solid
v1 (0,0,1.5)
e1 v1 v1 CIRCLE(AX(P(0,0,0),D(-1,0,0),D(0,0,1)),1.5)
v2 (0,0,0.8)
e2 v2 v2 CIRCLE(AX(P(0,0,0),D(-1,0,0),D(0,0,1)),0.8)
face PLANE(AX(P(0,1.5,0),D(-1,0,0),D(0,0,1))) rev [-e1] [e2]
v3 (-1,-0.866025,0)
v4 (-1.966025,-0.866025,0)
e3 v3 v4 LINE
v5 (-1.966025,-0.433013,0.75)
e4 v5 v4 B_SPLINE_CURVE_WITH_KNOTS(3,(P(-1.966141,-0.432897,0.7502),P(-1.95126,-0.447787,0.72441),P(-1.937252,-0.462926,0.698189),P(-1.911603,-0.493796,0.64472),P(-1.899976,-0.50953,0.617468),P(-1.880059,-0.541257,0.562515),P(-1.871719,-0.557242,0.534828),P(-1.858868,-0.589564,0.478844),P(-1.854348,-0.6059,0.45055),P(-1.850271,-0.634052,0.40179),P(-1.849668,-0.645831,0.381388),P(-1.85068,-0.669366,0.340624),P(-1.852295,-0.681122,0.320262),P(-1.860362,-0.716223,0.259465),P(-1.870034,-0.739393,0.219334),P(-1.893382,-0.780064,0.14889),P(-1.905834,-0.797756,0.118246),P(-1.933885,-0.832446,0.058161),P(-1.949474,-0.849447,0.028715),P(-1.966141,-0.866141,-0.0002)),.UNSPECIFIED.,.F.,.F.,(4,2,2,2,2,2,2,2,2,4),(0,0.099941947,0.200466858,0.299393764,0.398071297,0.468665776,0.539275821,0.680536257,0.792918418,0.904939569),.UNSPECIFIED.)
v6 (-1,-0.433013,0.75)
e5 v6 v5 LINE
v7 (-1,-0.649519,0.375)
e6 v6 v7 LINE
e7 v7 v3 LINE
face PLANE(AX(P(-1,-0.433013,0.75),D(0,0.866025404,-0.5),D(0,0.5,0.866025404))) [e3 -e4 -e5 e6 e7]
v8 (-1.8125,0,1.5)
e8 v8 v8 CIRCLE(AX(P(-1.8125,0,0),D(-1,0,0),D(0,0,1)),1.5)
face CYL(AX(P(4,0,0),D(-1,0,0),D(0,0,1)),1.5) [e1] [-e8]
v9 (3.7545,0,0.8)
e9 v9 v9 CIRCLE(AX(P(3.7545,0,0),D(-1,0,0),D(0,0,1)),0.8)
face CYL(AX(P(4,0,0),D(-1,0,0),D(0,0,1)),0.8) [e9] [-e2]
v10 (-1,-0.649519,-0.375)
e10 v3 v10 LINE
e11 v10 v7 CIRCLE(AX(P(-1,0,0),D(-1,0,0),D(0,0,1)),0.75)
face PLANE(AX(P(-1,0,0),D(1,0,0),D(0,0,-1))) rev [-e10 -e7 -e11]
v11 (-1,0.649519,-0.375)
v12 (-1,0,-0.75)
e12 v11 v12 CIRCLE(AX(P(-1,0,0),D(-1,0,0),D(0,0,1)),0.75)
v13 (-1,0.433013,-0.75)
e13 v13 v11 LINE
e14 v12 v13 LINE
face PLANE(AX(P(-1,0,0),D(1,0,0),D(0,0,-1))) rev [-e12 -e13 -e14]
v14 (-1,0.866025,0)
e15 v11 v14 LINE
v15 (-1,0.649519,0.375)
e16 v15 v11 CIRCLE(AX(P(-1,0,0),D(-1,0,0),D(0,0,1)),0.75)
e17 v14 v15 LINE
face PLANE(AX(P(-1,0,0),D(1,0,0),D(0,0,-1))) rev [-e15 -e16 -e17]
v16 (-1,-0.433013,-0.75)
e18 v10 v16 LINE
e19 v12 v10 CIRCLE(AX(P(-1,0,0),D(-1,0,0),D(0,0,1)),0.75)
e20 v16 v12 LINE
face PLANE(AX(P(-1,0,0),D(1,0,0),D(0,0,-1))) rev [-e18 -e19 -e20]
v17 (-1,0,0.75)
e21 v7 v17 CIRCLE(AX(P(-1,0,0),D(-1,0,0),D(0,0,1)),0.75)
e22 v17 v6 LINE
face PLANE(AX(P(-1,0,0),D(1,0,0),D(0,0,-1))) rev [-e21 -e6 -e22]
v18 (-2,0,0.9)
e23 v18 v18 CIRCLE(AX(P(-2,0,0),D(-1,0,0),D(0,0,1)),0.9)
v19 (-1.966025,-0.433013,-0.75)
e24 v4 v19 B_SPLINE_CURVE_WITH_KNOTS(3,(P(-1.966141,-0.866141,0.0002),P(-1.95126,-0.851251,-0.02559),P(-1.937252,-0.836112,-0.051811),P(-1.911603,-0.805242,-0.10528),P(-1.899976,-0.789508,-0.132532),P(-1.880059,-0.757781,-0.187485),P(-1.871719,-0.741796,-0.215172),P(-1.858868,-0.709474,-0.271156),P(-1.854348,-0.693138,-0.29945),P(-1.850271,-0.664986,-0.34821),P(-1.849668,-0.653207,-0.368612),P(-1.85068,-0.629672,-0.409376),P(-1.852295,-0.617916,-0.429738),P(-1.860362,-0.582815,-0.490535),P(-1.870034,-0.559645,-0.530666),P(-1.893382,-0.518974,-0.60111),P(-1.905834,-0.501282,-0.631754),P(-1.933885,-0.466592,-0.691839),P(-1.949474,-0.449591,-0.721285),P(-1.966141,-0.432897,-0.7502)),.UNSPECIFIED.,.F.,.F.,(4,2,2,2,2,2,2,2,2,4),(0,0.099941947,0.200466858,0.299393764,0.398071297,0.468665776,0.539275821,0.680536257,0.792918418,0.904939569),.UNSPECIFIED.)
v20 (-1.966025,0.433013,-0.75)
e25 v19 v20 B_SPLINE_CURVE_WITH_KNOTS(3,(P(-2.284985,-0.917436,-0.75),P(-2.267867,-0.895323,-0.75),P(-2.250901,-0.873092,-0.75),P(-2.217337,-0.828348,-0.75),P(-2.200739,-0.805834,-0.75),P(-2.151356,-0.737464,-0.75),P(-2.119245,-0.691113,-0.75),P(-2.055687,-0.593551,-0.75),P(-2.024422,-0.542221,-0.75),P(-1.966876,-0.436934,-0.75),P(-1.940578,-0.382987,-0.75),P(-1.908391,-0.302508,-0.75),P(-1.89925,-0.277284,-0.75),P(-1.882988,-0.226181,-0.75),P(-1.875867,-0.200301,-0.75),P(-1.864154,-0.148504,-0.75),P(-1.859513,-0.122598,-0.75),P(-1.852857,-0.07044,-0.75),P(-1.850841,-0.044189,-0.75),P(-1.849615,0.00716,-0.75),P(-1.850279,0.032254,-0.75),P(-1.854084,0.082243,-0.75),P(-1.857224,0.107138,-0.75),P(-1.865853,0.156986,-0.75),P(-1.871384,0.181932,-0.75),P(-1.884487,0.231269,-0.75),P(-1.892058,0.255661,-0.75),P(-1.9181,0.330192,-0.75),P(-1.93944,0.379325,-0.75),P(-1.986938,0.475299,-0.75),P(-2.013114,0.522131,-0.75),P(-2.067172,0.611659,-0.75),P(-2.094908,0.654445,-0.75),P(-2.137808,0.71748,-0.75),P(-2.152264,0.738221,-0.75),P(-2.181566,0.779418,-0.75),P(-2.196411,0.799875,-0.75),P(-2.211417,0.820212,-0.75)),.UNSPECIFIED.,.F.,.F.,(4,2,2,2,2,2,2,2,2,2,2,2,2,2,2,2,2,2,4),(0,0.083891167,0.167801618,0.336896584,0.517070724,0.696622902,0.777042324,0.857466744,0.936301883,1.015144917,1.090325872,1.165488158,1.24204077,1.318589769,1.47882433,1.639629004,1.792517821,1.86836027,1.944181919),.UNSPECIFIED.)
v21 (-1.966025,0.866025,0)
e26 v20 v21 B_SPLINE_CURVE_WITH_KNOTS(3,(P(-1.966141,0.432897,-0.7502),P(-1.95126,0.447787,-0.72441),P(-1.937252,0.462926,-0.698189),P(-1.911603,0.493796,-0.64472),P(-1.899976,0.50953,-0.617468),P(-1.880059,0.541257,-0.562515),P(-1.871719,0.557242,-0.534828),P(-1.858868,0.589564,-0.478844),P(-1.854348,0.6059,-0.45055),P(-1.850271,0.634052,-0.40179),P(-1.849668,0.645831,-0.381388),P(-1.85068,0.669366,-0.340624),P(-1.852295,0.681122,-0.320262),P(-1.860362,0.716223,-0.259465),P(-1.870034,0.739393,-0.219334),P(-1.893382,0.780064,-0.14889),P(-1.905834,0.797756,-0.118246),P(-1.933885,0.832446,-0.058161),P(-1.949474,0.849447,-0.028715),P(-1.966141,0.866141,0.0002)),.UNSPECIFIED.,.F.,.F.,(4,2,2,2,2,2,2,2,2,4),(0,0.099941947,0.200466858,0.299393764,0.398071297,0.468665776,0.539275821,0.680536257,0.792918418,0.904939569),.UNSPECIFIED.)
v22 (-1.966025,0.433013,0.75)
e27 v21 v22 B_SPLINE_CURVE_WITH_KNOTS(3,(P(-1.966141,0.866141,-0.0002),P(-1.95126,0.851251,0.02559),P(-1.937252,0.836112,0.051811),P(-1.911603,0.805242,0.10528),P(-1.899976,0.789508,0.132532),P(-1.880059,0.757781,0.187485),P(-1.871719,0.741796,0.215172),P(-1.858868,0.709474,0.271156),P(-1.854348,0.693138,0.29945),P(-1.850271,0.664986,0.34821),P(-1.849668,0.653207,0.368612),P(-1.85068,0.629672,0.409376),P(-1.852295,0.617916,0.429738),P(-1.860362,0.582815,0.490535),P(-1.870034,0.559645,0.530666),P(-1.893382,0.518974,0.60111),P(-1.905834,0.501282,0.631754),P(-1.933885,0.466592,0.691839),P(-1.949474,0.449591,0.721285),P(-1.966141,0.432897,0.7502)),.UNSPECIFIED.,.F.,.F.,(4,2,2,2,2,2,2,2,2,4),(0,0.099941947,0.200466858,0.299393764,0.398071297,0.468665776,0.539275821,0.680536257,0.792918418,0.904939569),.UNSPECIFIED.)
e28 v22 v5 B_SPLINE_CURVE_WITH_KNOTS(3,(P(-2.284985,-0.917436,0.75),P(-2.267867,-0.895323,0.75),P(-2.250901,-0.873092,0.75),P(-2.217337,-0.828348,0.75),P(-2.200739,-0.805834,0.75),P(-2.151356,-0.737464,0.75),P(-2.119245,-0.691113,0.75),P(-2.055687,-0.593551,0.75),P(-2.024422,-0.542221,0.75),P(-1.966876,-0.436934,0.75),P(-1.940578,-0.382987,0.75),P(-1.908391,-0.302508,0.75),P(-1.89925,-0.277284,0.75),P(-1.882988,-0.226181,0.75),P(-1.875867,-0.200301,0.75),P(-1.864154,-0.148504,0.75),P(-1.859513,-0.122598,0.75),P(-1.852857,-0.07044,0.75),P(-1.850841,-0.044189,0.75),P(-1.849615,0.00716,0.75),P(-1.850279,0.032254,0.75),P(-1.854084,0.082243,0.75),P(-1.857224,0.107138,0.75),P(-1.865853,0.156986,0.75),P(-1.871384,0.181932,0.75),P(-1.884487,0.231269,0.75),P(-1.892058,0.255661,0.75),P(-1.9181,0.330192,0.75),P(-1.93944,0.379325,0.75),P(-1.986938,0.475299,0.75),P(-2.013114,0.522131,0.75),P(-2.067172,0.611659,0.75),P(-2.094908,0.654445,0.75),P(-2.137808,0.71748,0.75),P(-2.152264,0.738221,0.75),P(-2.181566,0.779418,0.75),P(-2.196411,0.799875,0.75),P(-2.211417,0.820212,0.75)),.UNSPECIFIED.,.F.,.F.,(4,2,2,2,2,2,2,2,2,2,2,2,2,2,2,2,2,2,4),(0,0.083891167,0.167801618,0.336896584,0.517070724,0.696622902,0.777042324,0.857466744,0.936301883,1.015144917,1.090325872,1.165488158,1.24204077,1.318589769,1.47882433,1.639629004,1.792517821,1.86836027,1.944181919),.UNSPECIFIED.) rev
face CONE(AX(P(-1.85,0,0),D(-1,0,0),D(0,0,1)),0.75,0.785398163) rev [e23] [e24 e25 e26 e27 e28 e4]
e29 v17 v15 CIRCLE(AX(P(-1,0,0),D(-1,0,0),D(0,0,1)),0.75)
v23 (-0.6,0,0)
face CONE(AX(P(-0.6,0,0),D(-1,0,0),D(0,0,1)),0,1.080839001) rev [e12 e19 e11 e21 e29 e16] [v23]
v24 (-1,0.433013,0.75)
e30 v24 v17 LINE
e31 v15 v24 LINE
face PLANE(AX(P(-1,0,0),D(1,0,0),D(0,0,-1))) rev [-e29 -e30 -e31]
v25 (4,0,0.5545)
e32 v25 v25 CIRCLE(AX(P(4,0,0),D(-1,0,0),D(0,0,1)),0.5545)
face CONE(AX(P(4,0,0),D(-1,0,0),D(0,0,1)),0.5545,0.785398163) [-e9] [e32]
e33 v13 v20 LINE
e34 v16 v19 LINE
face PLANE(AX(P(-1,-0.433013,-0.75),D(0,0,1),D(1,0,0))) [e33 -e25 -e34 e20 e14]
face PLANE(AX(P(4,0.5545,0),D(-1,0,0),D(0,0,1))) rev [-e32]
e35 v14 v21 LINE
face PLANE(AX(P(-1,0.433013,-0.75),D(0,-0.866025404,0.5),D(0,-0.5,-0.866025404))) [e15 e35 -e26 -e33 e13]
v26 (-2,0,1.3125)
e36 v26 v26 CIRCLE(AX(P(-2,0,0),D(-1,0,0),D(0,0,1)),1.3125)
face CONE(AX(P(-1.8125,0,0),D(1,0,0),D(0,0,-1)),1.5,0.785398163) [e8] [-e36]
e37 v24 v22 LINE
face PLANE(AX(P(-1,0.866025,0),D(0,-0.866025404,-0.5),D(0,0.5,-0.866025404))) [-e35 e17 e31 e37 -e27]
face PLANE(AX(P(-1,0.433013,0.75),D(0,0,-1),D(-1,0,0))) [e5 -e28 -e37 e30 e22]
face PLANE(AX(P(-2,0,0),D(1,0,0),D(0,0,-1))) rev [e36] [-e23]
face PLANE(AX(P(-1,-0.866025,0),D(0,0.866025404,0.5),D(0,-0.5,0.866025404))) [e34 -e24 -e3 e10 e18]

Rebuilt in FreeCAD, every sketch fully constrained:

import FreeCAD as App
import Part
import Sketcher
from FreeCAD import Vector
Q = App.Units.Quantity

doc = App.newDocument("Part")
body = doc.addObject("PartDesign::Body", "Body")

sketch1 = body.newObject("Sketcher::SketchObject", "Sketch")
sketch1.AttachmentSupport = (doc.getObject("XY_Plane"), [""])
sketch1.MapMode = "FlatFace"
sketch1.addGeometry(Part.LineSegment(Vector(-2, 1.3125, 0), Vector(-2, 0, 0)), False)
sketch1.addGeometry(Part.LineSegment(Vector(-2, 0, 0), Vector(4, 0, 0)), False)
sketch1.addGeometry(Part.LineSegment(Vector(4, 0, 0), Vector(4, 0.5545, 0)), False)
sketch1.addGeometry(Part.LineSegment(Vector(4, 0.5545, 0), Vector(3.7545, 0.8, 0)), False)
sketch1.addGeometry(Part.LineSegment(Vector(3.7545, 0.8, 0), Vector(0, 0.8, 0)), False)
sketch1.addGeometry(Part.LineSegment(Vector(0, 0.8, 0), Vector(0, 1.5, 0)), False)
sketch1.addGeometry(Part.LineSegment(Vector(0, 1.5, 0), Vector(-1.8125, 1.5, 0)), False)
sketch1.addGeometry(Part.LineSegment(Vector(-1.8125, 1.5, 0), Vector(-2, 1.3125, 0)), False)
sketch1.addConstraint(Sketcher.Constraint("Coincident", 0, 2, 1, 1))
sketch1.addConstraint(Sketcher.Constraint("Coincident", 1, 2, 2, 1))
sketch1.addConstraint(Sketcher.Constraint("Coincident", 2, 2, 3, 1))
sketch1.addConstraint(Sketcher.Constraint("Coincident", 3, 2, 4, 1))
sketch1.addConstraint(Sketcher.Constraint("Coincident", 4, 2, 5, 1))
sketch1.addConstraint(Sketcher.Constraint("Coincident", 5, 2, 6, 1))
sketch1.addConstraint(Sketcher.Constraint("Coincident", 6, 2, 7, 1))
sketch1.addConstraint(Sketcher.Constraint("Coincident", 7, 2, 0, 1))
sketch1.addConstraint(Sketcher.Constraint("Vertical", 0))
sketch1.addConstraint(Sketcher.Constraint("Horizontal", 1))
sketch1.addConstraint(Sketcher.Constraint("Vertical", 2))
sketch1.addConstraint(Sketcher.Constraint("Horizontal", 4))
sketch1.addConstraint(Sketcher.Constraint("Vertical", 5))
sketch1.addConstraint(Sketcher.Constraint("Horizontal", 6))
sketch1.addConstraint(Sketcher.Constraint("PointOnObject", 0, 2, -1))
sketch1.addConstraint(Sketcher.Constraint("PointOnObject", 4, 2, -2))
sketch1.addConstraint(Sketcher.Constraint("Perpendicular", 3, 7))
sketch1.addConstraint(Sketcher.Constraint("DistanceX", 1, 1, 1, 2, 6.0))
sketch1.addConstraint(Sketcher.Constraint("Angle", 3, Q("135 deg")))
sketch1.addConstraint(Sketcher.Constraint("DistanceY", 5, 1, 5, 2, 0.7))
sketch1.addConstraint(Sketcher.Constraint("DistanceX", 0, 2, -1, 1, 2.0))
sketch1.addConstraint(Sketcher.Constraint("DistanceY", -1, 1, 3, 2, 0.8))
sketch1.addConstraint(Sketcher.Constraint("DistanceX", 4, 2, 4, 1, 3.7545))
sketch1.addConstraint(Sketcher.Constraint("DistanceX", 6, 2, 6, 1, 1.8125))
revolution = body.newObject("PartDesign::Revolution", "Revolution")
revolution.Profile = sketch1
revolution.ReferenceAxis = (sketch1, ["H_Axis"])
revolution.Angle = 360

sketch2 = body.newObject("Sketcher::SketchObject", "Sketch001")
sketch2.AttachmentSupport = (doc.getObject("XY_Plane"), [""])
sketch2.MapMode = "FlatFace"
sketch2.addGeometry(Part.LineSegment(Vector(-2, 0.9, 0), Vector(-2, 0, 0)), False)
sketch2.addGeometry(Part.LineSegment(Vector(-2, 0, 0), Vector(-0.6, 0, 0)), False)
sketch2.addGeometry(Part.LineSegment(Vector(-0.6, 0, 0), Vector(-1, 0.75, 0)), False)
sketch2.addGeometry(Part.LineSegment(Vector(-1, 0.75, 0), Vector(-1.85, 0.75, 0)), False)
sketch2.addGeometry(Part.LineSegment(Vector(-1.85, 0.75, 0), Vector(-2, 0.9, 0)), False)
sketch2.addConstraint(Sketcher.Constraint("Coincident", 0, 2, 1, 1))
sketch2.addConstraint(Sketcher.Constraint("Coincident", 1, 2, 2, 1))
sketch2.addConstraint(Sketcher.Constraint("Coincident", 2, 2, 3, 1))
sketch2.addConstraint(Sketcher.Constraint("Coincident", 3, 2, 4, 1))
sketch2.addConstraint(Sketcher.Constraint("Coincident", 4, 2, 0, 1))
sketch2.addConstraint(Sketcher.Constraint("Vertical", 0))
sketch2.addConstraint(Sketcher.Constraint("Horizontal", 1))
sketch2.addConstraint(Sketcher.Constraint("Horizontal", 3))
sketch2.addConstraint(Sketcher.Constraint("PointOnObject", 0, 2, -1))
sketch2.addConstraint(Sketcher.Constraint("Angle", 4, Q("135 deg")))
sketch2.addConstraint(Sketcher.Constraint("DistanceX", 1, 1, 1, 2, 1.4))
sketch2.addConstraint(Sketcher.Constraint("DistanceY", 0, 2, 0, 1, 0.9))
sketch2.addConstraint(Sketcher.Constraint("DistanceX", 0, 2, -1, 1, 2.0))
sketch2.addConstraint(Sketcher.Constraint("DistanceX", 2, 2, -1, 1, 1.0))
sketch2.addConstraint(Sketcher.Constraint("DistanceX", 3, 2, 3, 1, 0.85))
groove = body.newObject("PartDesign::Groove", "Groove")
groove.Profile = sketch2
groove.ReferenceAxis = (sketch2, ["H_Axis"])
groove.Angle = 360

sketch3 = body.newObject("Sketcher::SketchObject", "Sketch002")
sketch3.AttachmentSupport = (doc.getObject("YZ_Plane"), [""])
sketch3.MapMode = "FlatFace"
sketch3.AttachmentOffset = App.Placement(Vector(0, 0, -2), App.Rotation())
sketch3.addGeometry(Part.LineSegment(Vector(-0.433013, 0.75, 0), Vector(-0.866025, 0, 0)), False)
sketch3.addGeometry(Part.LineSegment(Vector(-0.866025, 0, 0), Vector(-0.433013, -0.75, 0)), False)
sketch3.addGeometry(Part.LineSegment(Vector(-0.433013, -0.75, 0), Vector(0.433013, -0.75, 0)), False)
sketch3.addGeometry(Part.LineSegment(Vector(0.433013, -0.75, 0), Vector(0.866025, 0, 0)), False)
sketch3.addGeometry(Part.LineSegment(Vector(0.866025, 0, 0), Vector(0.433013, 0.75, 0)), False)
sketch3.addGeometry(Part.LineSegment(Vector(0.433013, 0.75, 0), Vector(-0.433013, 0.75, 0)), False)
sketch3.addConstraint(Sketcher.Constraint("Coincident", 0, 2, 1, 1))
sketch3.addConstraint(Sketcher.Constraint("Coincident", 1, 2, 2, 1))
sketch3.addConstraint(Sketcher.Constraint("Coincident", 2, 2, 3, 1))
sketch3.addConstraint(Sketcher.Constraint("Coincident", 3, 2, 4, 1))
sketch3.addConstraint(Sketcher.Constraint("Coincident", 4, 2, 5, 1))
sketch3.addConstraint(Sketcher.Constraint("Coincident", 5, 2, 0, 1))
sketch3.addConstraint(Sketcher.Constraint("Horizontal", 2))
sketch3.addConstraint(Sketcher.Constraint("Horizontal", 5))
sketch3.addConstraint(Sketcher.Constraint("Symmetric", 0, 2, 3, 2, -1, 1))
sketch3.addConstraint(Sketcher.Constraint("Symmetric", 1, 2, 4, 2, -1, 1))
sketch3.addConstraint(Sketcher.Constraint("PointOnObject", 0, 2, -1))
sketch3.addConstraint(Sketcher.Constraint("Parallel", 0, 3))
sketch3.addConstraint(Sketcher.Constraint("Vertical", 2, 2, 4, 2))
sketch3.addConstraint(Sketcher.Constraint("Angle", 0, Q("-120 deg")))
sketch3.addConstraint(Sketcher.Constraint("DistanceY", 2, 2, 4, 2, 1.5))
sketch3.addConstraint(Sketcher.Constraint("DistanceX", 2, 1, 2, 2, 0.866025))
pocket1 = body.newObject("PartDesign::Pocket", "Pocket")
pocket1.Profile = sketch3
pocket1.Length = 1
pocket1.Reversed = True

doc.recompute()
